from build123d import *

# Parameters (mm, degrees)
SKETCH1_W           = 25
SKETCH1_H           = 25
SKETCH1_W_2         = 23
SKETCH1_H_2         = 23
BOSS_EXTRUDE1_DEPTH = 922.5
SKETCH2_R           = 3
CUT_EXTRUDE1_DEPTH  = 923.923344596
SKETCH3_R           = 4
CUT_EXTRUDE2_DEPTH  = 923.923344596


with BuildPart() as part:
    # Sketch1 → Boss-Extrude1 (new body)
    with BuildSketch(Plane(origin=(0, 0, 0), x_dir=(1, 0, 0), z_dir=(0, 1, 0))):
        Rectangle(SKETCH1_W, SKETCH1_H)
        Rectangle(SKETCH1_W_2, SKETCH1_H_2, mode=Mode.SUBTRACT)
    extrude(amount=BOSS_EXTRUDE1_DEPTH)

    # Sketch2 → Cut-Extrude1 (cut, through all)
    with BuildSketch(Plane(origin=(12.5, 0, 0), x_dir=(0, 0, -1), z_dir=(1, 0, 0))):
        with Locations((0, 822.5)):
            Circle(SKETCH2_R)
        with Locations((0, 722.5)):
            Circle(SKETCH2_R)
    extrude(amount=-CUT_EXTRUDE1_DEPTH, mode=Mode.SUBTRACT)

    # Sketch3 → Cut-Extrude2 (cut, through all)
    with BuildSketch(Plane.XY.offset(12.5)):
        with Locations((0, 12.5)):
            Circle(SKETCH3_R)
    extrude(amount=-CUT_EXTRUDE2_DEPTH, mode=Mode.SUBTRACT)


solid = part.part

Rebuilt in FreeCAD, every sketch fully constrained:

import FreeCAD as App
import Part
import Sketcher

V = App.Vector
Q = App.Units.Quantity

doc = App.newDocument("Part")
body = doc.addObject("PartDesign::Body", "Body")

# Sketch on XZ plane
sketch1 = body.newObject("Sketcher::SketchObject", "Sketch")
sketch1.AttachmentSupport = (doc.getObject("XZ_Plane"), [""])
sketch1.MapMode = "FlatFace"
sketch1.addGeometry(Part.LineSegment(V(-12.5, -12.5, 0), V(-12.5, 12.5, 0)), False)
sketch1.addGeometry(Part.LineSegment(V(-12.5, 12.5, 0), V(12.5, 12.5, 0)), False)
sketch1.addGeometry(Part.LineSegment(V(12.5, 12.5, 0), V(12.5, -12.5, 0)), False)
sketch1.addGeometry(Part.LineSegment(V(12.5, -12.5, 0), V(-12.5, -12.5, 0)), False)
sketch1.addGeometry(Part.LineSegment(V(11.5, 11.5, 0), V(-11.5, 11.5, 0)), False)
sketch1.addGeometry(Part.LineSegment(V(-11.5, 11.5, 0), V(-11.5, -11.5, 0)), False)
sketch1.addGeometry(Part.LineSegment(V(-11.5, -11.5, 0), V(11.5, -11.5, 0)), False)
sketch1.addGeometry(Part.LineSegment(V(11.5, -11.5, 0), V(11.5, 11.5, 0)), False)
sketch1.addConstraint(Sketcher.Constraint("Coincident", 0, 2, 1, 1))
sketch1.addConstraint(Sketcher.Constraint("Coincident", 1, 2, 2, 1))
sketch1.addConstraint(Sketcher.Constraint("Coincident", 2, 2, 3, 1))
sketch1.addConstraint(Sketcher.Constraint("Coincident", 3, 2, 0, 1))
sketch1.addConstraint(Sketcher.Constraint("Coincident", 4, 2, 5, 1))
sketch1.addConstraint(Sketcher.Constraint("Coincident", 5, 2, 6, 1))
sketch1.addConstraint(Sketcher.Constraint("Coincident", 6, 2, 7, 1))
sketch1.addConstraint(Sketcher.Constraint("Coincident", 7, 2, 4, 1))
sketch1.addConstraint(Sketcher.Constraint("Vertical", 0))
sketch1.addConstraint(Sketcher.Constraint("Horizontal", 1))
sketch1.addConstraint(Sketcher.Constraint("Vertical", 2))
sketch1.addConstraint(Sketcher.Constraint("Horizontal", 3))
sketch1.addConstraint(Sketcher.Constraint("Horizontal", 4))
sketch1.addConstraint(Sketcher.Constraint("Vertical", 5))
sketch1.addConstraint(Sketcher.Constraint("Horizontal", 6))
sketch1.addConstraint(Sketcher.Constraint("Vertical", 7))
sketch1.addConstraint(Sketcher.Constraint("Symmetric", 0, 2, 2, 2, -1, 1))
sketch1.addConstraint(Sketcher.Constraint("Symmetric", 4, 2, 6, 2, -1, 1))
sketch1.addConstraint(Sketcher.Constraint("Equal", 3, 0))
sketch1.addConstraint(Sketcher.Constraint("Equal", 6, 5))
sketch1.addConstraint(Sketcher.Constraint("DistanceX", 1, 1, 1, 2, Q("25 mm")))
sketch1.addConstraint(Sketcher.Constraint("DistanceX", 4, 2, 4, 1, Q("23 mm")))
pad1 = body.newObject("PartDesign::Pad", "Pad")
pad1.Profile = sketch1
pad1.Length = 922.5
pad1.Reversed = True

# Sketch on YZ plane
sketch2 = body.newObject("Sketcher::SketchObject", "Sketch001")
sketch2.AttachmentSupport = (doc.getObject("YZ_Plane"), [""])
sketch2.MapMode = "FlatFace"
sketch2.AttachmentOffset = App.Placement(V(0, 0, 12.5), App.Rotation())
sketch2.addGeometry(Part.Circle(V(822.5, 0, 0), V(0, 0, 1), 3), False)
sketch2.addGeometry(Part.Circle(V(722.5, 0, 0), V(0, 0, 1), 3), False)
sketch2.addConstraint(Sketcher.Constraint("Equal", 0, 1))
sketch2.addConstraint(Sketcher.Constraint("PointOnObject", 0, 3, -1))
sketch2.addConstraint(Sketcher.Constraint("PointOnObject", 1, 3, -1))
sketch2.addConstraint(Sketcher.Constraint("Diameter", 0, Q("6 mm")))
sketch2.addConstraint(Sketcher.Constraint("DistanceX", 1, 3, 0, 3, Q("100 mm")))
sketch2.addConstraint(Sketcher.Constraint("DistanceX", -1, 1, 0, 3, Q("822.5 mm")))
pocket1 = body.newObject("PartDesign::Pocket", "Pocket")
pocket1.Profile = sketch2
pocket1.Type = "ThroughAll"

# Sketch on XY plane
sketch3 = body.newObject("Sketcher::SketchObject", "Sketch002")
sketch3.AttachmentSupport = (doc.getObject("XY_Plane"), [""])
sketch3.MapMode = "FlatFace"
sketch3.AttachmentOffset = App.Placement(V(0, 0, 12.5), App.Rotation())
sketch3.addGeometry(Part.Circle(V(0, 12.5, 0), V(0, 0, 1), 4), False)
sketch3.addConstraint(Sketcher.Constraint("PointOnObject", 0, 3, -2))
sketch3.addConstraint(Sketcher.Constraint("Diameter", 0, Q("8 mm")))
sketch3.addConstraint(Sketcher.Constraint("DistanceY", -1, 1, 0, 3, Q("12.5 mm")))
pocket2 = body.newObject("PartDesign::Pocket", "Pocket001")
pocket2.Profile = sketch3
pocket2.Type = "ThroughAll"

doc.recompute()
